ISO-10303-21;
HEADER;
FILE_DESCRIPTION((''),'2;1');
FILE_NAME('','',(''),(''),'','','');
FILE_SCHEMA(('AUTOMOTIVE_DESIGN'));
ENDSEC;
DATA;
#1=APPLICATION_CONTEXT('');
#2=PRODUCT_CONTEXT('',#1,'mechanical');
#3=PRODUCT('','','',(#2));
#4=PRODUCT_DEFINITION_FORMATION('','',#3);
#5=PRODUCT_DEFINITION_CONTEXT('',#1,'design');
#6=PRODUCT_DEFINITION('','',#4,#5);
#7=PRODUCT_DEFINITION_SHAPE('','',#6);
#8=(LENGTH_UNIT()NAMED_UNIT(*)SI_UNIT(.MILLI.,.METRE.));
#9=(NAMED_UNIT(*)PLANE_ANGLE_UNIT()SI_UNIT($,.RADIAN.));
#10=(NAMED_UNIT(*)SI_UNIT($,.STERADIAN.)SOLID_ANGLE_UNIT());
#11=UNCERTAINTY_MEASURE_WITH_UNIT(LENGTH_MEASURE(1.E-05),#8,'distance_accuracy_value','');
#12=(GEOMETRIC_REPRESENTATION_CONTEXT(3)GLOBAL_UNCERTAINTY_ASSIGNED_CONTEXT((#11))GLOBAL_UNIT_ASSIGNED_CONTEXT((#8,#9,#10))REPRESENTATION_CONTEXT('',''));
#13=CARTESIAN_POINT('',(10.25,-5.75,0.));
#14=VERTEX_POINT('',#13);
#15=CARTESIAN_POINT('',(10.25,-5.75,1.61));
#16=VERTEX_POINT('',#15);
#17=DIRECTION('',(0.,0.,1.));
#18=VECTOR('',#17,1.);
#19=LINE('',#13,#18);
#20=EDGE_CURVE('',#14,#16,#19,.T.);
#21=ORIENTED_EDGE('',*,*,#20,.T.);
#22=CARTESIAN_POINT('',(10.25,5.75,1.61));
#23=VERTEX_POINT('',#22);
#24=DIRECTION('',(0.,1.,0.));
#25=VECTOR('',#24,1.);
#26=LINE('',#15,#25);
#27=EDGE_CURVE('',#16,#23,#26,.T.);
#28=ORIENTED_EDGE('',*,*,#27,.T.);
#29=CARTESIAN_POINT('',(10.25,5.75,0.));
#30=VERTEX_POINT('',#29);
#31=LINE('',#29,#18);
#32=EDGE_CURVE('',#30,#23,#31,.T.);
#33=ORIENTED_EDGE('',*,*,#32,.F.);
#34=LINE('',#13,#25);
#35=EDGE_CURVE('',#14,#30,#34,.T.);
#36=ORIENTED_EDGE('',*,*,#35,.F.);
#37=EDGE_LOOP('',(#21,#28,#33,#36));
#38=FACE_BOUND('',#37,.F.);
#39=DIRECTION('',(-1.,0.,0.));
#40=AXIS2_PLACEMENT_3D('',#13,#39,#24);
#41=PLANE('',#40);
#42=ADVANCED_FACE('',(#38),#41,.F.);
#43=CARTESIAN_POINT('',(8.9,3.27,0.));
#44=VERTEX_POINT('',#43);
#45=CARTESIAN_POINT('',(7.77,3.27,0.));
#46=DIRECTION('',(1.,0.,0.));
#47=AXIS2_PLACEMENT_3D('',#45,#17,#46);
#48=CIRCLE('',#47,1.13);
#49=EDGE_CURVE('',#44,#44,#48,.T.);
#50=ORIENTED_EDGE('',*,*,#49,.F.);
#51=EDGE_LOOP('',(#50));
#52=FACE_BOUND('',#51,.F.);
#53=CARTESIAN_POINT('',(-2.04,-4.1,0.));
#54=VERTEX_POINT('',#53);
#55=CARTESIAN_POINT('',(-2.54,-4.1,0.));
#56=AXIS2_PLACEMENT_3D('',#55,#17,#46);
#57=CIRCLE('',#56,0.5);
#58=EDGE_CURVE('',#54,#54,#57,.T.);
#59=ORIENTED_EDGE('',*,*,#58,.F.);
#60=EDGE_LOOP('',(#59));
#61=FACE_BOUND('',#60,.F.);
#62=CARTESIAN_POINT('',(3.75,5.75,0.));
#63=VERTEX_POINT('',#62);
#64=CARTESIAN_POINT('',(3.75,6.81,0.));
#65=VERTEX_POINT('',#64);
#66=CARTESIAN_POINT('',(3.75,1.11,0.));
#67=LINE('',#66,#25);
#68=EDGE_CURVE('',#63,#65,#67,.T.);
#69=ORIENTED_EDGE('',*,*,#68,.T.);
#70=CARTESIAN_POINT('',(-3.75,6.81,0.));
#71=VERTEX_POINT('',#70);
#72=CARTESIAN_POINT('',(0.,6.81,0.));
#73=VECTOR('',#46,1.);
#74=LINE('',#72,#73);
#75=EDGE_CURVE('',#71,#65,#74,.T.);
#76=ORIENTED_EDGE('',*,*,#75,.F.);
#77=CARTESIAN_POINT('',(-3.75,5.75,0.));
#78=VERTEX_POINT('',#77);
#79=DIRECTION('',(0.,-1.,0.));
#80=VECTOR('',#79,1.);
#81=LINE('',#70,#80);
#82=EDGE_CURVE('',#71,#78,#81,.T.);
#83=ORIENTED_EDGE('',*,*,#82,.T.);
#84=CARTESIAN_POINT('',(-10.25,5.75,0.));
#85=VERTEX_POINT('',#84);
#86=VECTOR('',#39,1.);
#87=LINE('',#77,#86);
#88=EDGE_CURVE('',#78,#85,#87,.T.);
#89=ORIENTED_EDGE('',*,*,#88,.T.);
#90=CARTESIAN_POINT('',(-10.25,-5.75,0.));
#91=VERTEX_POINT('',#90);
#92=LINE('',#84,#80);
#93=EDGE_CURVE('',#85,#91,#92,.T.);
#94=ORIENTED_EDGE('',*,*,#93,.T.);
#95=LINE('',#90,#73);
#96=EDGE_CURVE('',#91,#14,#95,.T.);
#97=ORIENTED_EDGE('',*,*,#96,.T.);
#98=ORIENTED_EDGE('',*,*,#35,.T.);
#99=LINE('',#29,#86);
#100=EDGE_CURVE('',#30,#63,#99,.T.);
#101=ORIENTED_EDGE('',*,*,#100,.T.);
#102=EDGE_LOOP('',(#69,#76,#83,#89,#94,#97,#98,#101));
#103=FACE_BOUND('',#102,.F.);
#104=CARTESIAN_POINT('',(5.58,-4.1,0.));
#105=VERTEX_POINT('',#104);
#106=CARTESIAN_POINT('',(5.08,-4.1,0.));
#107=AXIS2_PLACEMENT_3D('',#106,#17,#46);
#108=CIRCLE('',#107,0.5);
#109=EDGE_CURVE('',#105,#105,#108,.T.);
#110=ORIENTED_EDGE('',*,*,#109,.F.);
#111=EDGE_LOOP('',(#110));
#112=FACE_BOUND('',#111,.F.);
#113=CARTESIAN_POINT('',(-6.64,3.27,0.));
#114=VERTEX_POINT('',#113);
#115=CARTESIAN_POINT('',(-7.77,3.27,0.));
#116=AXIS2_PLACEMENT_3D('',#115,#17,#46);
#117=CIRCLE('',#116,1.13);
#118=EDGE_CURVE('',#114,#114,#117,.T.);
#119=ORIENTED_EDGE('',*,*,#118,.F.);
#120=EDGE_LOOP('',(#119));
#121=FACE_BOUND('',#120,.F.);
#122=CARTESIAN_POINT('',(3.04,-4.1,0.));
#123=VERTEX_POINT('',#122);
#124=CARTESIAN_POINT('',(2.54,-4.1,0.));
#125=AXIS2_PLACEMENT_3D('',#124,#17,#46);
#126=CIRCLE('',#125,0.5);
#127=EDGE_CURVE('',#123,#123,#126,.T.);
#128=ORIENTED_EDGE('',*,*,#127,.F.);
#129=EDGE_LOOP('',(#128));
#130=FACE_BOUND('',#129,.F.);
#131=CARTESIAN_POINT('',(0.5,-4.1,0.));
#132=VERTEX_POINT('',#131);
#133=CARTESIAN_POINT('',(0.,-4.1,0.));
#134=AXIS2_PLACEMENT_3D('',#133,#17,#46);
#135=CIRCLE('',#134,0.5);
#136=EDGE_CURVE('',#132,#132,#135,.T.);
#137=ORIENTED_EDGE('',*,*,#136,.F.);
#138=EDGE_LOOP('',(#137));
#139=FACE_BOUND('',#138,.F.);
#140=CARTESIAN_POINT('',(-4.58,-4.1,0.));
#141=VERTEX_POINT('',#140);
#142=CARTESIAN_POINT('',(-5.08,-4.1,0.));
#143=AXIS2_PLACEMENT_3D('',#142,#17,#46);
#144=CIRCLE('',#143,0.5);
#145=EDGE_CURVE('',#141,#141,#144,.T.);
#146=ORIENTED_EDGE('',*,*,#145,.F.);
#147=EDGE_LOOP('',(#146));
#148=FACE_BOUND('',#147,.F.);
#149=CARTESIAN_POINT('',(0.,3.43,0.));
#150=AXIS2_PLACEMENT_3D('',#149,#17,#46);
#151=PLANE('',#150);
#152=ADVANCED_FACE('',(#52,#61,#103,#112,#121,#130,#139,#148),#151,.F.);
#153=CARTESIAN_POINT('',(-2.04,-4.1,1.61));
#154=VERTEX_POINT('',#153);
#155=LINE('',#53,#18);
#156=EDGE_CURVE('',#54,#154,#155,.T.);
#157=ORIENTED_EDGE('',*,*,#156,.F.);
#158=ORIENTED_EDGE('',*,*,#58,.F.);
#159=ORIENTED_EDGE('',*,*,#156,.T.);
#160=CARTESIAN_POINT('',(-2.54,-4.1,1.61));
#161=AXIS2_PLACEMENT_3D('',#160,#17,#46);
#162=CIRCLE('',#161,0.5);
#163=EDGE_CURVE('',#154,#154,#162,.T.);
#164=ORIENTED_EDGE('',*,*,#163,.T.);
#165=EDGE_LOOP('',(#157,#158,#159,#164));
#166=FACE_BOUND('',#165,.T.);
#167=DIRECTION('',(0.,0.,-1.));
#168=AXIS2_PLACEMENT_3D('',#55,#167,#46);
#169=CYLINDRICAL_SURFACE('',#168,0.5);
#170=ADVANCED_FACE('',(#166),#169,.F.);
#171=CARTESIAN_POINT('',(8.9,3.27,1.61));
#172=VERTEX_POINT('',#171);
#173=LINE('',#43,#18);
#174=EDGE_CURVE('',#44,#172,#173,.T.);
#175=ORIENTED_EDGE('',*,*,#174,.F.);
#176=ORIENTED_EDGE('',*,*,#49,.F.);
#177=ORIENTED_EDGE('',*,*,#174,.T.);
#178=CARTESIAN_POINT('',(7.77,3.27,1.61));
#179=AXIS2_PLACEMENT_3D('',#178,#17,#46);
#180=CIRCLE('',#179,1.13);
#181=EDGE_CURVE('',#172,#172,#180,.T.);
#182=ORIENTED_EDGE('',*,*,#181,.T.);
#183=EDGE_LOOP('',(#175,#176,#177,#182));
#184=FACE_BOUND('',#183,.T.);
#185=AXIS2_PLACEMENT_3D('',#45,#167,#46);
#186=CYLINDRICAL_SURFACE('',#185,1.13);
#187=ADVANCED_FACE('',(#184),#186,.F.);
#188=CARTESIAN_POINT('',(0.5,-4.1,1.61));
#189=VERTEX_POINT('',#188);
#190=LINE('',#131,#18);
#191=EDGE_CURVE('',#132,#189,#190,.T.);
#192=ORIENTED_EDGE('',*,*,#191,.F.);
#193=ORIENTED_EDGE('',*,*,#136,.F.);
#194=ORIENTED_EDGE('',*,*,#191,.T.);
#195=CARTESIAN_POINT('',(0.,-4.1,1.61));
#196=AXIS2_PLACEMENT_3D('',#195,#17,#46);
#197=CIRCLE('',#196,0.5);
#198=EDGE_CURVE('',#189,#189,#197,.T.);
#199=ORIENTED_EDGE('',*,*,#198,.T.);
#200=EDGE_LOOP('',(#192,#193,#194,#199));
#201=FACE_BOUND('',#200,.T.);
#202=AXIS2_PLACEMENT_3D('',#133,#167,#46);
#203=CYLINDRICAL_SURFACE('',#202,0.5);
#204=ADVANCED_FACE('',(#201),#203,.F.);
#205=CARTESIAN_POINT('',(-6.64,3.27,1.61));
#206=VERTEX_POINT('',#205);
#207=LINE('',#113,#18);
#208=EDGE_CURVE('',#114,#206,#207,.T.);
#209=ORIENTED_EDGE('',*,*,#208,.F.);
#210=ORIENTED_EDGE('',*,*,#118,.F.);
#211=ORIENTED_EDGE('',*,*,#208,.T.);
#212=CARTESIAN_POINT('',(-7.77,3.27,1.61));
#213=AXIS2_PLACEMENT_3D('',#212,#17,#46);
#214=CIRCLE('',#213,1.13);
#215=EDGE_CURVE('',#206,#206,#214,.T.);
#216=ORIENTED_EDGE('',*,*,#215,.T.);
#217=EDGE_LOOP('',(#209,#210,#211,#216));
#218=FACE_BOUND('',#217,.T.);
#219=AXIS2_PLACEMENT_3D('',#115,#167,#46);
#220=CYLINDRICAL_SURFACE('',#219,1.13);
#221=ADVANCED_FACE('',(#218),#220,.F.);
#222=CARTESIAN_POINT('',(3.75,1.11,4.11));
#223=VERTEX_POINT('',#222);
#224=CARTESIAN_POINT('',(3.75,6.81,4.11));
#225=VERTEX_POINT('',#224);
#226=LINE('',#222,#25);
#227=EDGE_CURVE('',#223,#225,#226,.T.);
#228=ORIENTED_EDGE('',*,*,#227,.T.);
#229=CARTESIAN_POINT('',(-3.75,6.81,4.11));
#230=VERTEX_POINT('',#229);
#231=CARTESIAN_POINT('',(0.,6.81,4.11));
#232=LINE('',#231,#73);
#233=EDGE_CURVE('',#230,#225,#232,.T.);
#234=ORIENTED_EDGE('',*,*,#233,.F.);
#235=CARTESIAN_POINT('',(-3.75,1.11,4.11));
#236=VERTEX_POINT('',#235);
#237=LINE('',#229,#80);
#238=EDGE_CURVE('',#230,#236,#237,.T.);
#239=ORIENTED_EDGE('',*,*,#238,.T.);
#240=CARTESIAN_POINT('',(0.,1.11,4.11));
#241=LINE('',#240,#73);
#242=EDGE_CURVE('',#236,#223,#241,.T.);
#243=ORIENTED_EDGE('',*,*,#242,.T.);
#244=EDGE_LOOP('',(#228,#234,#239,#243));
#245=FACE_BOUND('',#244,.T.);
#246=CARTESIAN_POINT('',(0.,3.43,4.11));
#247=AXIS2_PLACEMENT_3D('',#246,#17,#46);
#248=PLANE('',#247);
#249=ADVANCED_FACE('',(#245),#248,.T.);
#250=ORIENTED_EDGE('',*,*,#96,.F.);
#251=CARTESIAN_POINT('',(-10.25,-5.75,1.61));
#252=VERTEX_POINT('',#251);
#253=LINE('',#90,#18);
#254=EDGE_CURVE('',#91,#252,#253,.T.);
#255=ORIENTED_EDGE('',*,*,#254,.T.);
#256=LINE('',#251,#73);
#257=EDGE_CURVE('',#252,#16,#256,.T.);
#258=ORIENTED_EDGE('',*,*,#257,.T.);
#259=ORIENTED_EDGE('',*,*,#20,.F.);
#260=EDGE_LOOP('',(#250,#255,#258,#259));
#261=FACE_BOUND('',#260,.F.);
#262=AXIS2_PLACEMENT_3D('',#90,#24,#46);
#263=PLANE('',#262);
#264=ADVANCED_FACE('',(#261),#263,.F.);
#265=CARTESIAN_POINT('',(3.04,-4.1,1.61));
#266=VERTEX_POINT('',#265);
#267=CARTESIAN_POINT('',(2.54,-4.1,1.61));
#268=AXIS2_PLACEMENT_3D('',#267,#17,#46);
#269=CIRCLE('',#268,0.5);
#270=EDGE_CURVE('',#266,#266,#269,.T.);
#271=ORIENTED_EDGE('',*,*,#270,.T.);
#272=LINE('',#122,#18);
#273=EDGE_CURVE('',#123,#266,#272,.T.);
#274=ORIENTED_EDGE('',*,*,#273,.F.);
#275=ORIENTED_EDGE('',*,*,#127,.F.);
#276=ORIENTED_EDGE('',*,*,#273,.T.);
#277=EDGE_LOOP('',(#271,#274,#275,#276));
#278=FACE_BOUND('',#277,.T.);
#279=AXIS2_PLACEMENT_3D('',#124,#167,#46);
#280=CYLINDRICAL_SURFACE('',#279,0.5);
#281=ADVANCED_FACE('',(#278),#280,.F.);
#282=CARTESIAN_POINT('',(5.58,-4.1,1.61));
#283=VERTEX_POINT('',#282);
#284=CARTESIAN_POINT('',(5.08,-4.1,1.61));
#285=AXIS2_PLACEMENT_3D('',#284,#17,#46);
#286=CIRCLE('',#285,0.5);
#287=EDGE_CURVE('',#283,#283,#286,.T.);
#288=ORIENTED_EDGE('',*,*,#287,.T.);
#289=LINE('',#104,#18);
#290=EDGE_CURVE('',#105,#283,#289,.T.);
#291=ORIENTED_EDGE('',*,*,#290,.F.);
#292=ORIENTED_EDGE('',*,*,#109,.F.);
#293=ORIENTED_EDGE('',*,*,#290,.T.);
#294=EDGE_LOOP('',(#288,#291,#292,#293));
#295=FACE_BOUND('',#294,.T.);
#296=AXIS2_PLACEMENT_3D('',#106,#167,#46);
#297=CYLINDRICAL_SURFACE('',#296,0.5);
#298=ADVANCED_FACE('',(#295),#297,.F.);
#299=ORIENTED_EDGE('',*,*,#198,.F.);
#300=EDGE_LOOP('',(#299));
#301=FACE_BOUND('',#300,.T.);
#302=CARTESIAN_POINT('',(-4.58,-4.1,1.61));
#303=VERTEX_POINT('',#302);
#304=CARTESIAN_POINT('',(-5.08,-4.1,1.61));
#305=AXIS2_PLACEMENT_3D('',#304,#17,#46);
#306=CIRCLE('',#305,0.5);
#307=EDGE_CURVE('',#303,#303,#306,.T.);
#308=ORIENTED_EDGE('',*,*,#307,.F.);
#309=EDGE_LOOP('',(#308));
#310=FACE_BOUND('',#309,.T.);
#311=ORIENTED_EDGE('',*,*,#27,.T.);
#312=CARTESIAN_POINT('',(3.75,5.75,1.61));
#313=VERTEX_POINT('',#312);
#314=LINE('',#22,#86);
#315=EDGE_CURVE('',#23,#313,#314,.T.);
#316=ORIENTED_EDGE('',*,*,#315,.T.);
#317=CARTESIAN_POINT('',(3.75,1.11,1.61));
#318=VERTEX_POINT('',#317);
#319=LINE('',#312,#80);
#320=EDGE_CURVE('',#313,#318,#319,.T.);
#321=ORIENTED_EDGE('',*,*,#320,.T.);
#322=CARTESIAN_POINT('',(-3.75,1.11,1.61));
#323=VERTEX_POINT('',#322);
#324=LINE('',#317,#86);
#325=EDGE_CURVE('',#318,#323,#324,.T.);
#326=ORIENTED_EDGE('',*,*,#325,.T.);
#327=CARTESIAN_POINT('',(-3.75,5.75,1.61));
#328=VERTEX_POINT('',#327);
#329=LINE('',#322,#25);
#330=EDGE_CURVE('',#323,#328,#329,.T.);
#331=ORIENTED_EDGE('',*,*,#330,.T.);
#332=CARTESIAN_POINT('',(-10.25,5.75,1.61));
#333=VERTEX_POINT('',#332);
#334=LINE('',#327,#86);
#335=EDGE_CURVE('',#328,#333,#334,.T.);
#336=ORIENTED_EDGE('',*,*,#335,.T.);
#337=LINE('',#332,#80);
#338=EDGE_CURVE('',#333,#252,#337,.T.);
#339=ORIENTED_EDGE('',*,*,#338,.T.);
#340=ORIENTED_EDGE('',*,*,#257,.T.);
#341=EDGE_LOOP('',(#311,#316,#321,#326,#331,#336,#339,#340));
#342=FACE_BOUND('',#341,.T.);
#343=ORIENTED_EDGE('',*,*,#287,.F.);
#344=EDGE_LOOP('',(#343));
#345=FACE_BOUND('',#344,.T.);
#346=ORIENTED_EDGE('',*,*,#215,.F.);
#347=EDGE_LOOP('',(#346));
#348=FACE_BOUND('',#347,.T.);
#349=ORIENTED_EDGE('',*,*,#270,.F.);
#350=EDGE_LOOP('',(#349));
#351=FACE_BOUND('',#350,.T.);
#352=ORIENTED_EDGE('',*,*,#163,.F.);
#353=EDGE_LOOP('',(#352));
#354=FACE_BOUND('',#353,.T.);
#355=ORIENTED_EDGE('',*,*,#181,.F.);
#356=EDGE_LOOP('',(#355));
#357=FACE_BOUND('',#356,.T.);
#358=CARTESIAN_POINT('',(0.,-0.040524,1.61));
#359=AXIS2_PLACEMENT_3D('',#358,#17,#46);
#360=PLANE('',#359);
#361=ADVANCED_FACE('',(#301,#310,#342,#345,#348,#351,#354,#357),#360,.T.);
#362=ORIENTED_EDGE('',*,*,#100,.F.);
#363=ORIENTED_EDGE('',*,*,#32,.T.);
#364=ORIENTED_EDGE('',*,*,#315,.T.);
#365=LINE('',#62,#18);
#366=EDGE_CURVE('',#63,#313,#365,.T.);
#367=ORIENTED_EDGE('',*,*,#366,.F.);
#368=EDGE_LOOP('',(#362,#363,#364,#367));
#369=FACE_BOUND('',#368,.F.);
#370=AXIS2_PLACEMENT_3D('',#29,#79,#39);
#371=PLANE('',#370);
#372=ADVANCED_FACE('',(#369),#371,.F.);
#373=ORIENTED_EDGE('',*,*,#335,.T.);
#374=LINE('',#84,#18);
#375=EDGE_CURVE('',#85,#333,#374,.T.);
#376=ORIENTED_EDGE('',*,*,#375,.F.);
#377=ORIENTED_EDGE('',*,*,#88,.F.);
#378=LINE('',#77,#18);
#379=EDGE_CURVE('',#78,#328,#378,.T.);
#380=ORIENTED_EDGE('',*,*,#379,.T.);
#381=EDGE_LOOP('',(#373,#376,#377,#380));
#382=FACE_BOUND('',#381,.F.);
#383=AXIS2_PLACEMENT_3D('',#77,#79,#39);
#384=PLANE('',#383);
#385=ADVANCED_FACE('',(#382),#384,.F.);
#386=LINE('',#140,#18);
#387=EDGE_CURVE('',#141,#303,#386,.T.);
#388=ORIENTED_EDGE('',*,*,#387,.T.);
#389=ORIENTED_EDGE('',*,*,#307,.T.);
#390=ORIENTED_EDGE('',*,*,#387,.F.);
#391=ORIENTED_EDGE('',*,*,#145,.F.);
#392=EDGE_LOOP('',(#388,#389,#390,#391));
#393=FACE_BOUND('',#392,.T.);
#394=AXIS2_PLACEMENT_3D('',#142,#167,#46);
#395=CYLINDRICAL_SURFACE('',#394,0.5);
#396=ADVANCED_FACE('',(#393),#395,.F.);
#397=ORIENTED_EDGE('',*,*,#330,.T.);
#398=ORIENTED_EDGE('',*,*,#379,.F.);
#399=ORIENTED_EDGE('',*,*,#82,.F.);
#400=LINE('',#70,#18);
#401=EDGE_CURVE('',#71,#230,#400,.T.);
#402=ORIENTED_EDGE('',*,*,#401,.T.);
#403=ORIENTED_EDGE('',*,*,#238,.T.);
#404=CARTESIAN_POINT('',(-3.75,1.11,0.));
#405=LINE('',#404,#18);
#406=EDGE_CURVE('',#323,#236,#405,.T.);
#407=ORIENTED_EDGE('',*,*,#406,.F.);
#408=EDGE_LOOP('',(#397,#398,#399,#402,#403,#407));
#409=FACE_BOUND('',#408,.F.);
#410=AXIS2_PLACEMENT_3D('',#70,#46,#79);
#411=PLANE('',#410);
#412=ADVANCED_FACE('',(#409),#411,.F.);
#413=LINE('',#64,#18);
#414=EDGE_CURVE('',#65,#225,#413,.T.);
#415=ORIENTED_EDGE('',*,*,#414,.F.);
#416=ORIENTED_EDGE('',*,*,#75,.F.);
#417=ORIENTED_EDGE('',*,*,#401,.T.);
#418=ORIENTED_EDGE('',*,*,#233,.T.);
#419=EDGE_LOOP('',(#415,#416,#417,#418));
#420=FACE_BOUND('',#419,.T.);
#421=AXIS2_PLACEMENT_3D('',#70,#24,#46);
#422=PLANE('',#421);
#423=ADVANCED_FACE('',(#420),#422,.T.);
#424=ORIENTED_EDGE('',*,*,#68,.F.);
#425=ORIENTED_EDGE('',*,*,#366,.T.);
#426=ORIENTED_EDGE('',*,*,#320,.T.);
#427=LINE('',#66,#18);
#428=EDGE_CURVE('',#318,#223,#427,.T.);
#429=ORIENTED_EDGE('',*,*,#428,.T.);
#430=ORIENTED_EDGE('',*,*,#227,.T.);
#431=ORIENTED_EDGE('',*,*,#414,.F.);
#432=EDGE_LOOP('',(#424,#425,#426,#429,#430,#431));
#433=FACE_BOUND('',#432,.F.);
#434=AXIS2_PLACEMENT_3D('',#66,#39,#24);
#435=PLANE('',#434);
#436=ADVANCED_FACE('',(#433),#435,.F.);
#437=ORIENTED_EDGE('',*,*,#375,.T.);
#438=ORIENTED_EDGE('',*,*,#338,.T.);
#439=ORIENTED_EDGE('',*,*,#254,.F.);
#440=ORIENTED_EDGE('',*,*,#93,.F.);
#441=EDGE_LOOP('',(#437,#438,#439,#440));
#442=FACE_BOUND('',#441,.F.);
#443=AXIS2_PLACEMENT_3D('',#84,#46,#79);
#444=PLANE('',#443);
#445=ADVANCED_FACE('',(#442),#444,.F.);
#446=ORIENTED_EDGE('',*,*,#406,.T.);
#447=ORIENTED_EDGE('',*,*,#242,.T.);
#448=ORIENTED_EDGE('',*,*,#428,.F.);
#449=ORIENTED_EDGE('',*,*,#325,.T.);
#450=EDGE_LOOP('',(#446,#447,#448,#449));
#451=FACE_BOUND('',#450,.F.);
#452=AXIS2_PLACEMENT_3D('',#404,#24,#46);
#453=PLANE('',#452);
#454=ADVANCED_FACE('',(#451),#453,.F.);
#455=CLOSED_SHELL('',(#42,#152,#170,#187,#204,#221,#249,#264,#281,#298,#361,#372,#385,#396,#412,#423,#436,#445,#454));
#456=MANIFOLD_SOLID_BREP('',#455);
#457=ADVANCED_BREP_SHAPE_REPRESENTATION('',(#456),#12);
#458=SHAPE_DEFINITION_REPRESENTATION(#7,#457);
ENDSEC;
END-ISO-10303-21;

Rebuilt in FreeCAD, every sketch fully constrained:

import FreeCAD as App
import Part
import Sketcher

V = App.Vector
Q = App.Units.Quantity

doc = App.newDocument("Part")
body = doc.addObject("PartDesign::Body", "Body")

# Sketch on XY plane
sketch1 = doc.addObject("Sketcher::SketchObject", "Sketch")
body.addObject(sketch1)
sketch1.AttachmentSupport = (doc.XY_Plane, [""])
sketch1.MapMode = "FlatFace"
sketch1.addGeometry([
    Part.LineSegment(V(-10.25, -5.75, 0), V(10.25, -5.75, 0)),  # 0
    Part.LineSegment(V(10.25, -5.75, 0), V(10.25, 5.75, 0)),  # 1
    Part.LineSegment(V(10.25, 5.75, 0), V(3.75, 5.75, 0)),  # 2
    Part.LineSegment(V(3.75, 5.75, 0), V(3.75, 1.11, 0)),  # 3
    Part.LineSegment(V(3.75, 1.11, 0), V(-3.75, 1.11, 0)),  # 4
    Part.LineSegment(V(-3.75, 1.11, 0), V(-3.75, 5.75, 0)),  # 5
    Part.LineSegment(V(-3.75, 5.75, 0), V(-10.25, 5.75, 0)),  # 6
    Part.LineSegment(V(-10.25, 5.75, 0), V(-10.25, -5.75, 0)),  # 7
    Part.Circle(V(-5.08, -4.1, 0), V(0, 0, 1), 0.5),  # 8
    Part.Circle(V(-2.54, -4.1, 0), V(0, 0, 1), 0.5),  # 9
    Part.Circle(V(0, -4.1, 0), V(0, 0, 1), 0.5),  # 10
    Part.Circle(V(2.54, -4.1, 0), V(0, 0, 1), 0.5),  # 11
    Part.Circle(V(5.08, -4.1, 0), V(0, 0, 1), 0.5),  # 12
    Part.Circle(V(-7.77, 3.27, 0), V(0, 0, 1), 1.13),  # 13
    Part.Circle(V(7.77, 3.27, 0), V(0, 0, 1), 1.13),  # 14
], False)
sketch1.addConstraint([
    Sketcher.Constraint("Coincident", 0, 2, 1, 1),
    Sketcher.Constraint("Coincident", 1, 2, 2, 1),
    Sketcher.Constraint("Coincident", 2, 2, 3, 1),
    Sketcher.Constraint("Coincident", 3, 2, 4, 1),
    Sketcher.Constraint("Coincident", 4, 2, 5, 1),
    Sketcher.Constraint("Coincident", 5, 2, 6, 1),
    Sketcher.Constraint("Coincident", 6, 2, 7, 1),
    Sketcher.Constraint("Coincident", 7, 2, 0, 1),
    Sketcher.Constraint("Horizontal", 0),
    Sketcher.Constraint("Vertical", 1),
    Sketcher.Constraint("Horizontal", 2),
    Sketcher.Constraint("Vertical", 3),
    Sketcher.Constraint("Horizontal", 4),
    Sketcher.Constraint("Vertical", 5),
    Sketcher.Constraint("Horizontal", 6),
    Sketcher.Constraint("Vertical", 7),
    Sketcher.Constraint("Equal", 8, 9),
    Sketcher.Constraint("Equal", 9, 10),
    Sketcher.Constraint("Equal", 10, 11),
    Sketcher.Constraint("Equal", 11, 12),
    Sketcher.Constraint("Equal", 13, 14),
    Sketcher.Constraint("Symmetric", 0, 2, 6, 2, -1, 1),
    Sketcher.Constraint("Symmetric", 9, 3, 11, 3, -2),
    Sketcher.Constraint("Symmetric", 8, 3, 12, 3, -2),
    Sketcher.Constraint("Symmetric", 13, 3, 14, 3, -2),
    Sketcher.Constraint("Symmetric", 2, 2, 5, 2, -2),
    Sketcher.Constraint("PointOnObject", 10, 3, -2),
    Sketcher.Constraint("Horizontal", 8, 3, 9, 3),
    Sketcher.Constraint("Horizontal", 9, 3, 10, 3),
    Sketcher.Constraint("Diameter", 8, Q("1 mm")),
    Sketcher.Constraint("Diameter", 13, Q("2.26 mm")),
    Sketcher.Constraint("DistanceX", 0, 1, 0, 2, Q("20.5 mm")),
    Sketcher.Constraint("DistanceX", 2, 2, 2, 1, Q("6.5 mm")),
    Sketcher.Constraint("DistanceY", 1, 1, 1, 2, Q("11.5 mm")),
    Sketcher.Constraint("DistanceY", 3, 2, 3, 1, Q("4.64 mm")),
    Sketcher.Constraint("DistanceY", 8, 3, -1, 1, Q("4.1 mm")),
    Sketcher.Constraint("DistanceX", 8, 3, -1, 1, Q("5.08 mm")),
    Sketcher.Constraint("DistanceX", 9, 3, -1, 1, Q("2.54 mm")),
    Sketcher.Constraint("DistanceX", 13, 3, -1, 1, Q("7.77 mm")),
    Sketcher.Constraint("DistanceY", -1, 1, 13, 3, Q("3.27 mm")),
])
pad1 = doc.addObject("PartDesign::Pad", "Pad")
body.addObject(pad1)
pad1.Profile = sketch1
pad1.Length = 1.61

# Sketch on XY plane
sketch2 = doc.addObject("Sketcher::SketchObject", "Sketch001")
body.addObject(sketch2)
sketch2.AttachmentSupport = (doc.XY_Plane, [""])
sketch2.MapMode = "FlatFace"
sketch2.addGeometry([
    Part.LineSegment(V(-3.75, 1.11, 0), V(3.75, 1.11, 0)),
    Part.LineSegment(V(3.75, 1.11, 0), V(3.75, 6.81, 0)),
    Part.LineSegment(V(3.75, 6.81, 0), V(-3.75, 6.81, 0)),
    Part.LineSegment(V(-3.75, 6.81, 0), V(-3.75, 1.11, 0)),
], False)
sketch2.addConstraint([
    Sketcher.Constraint("Coincident", 0, 2, 1, 1),
    Sketcher.Constraint("Coincident", 1, 2, 2, 1),
    Sketcher.Constraint("Coincident", 2, 2, 3, 1),
    Sketcher.Constraint("Coincident", 3, 2, 0, 1),
    Sketcher.Constraint("Horizontal", 0),
    Sketcher.Constraint("Vertical", 1),
    Sketcher.Constraint("Horizontal", 2),
    Sketcher.Constraint("Vertical", 3),
    Sketcher.Constraint("DistanceX", 0, 1, 0, 2, Q("7.5 mm")),
    Sketcher.Constraint("DistanceY", 1, 1, 1, 2, Q("5.7 mm")),
    Sketcher.Constraint("DistanceX", -1, 1, 0, 2, Q("3.75 mm")),
    Sketcher.Constraint("DistanceY", -1, 1, 0, 2, Q("1.11 mm")),
])
pad2 = doc.addObject("PartDesign::Pad", "Pad001")
body.addObject(pad2)
pad2.Profile = sketch2
pad2.Length = 4.11

doc.recompute()
